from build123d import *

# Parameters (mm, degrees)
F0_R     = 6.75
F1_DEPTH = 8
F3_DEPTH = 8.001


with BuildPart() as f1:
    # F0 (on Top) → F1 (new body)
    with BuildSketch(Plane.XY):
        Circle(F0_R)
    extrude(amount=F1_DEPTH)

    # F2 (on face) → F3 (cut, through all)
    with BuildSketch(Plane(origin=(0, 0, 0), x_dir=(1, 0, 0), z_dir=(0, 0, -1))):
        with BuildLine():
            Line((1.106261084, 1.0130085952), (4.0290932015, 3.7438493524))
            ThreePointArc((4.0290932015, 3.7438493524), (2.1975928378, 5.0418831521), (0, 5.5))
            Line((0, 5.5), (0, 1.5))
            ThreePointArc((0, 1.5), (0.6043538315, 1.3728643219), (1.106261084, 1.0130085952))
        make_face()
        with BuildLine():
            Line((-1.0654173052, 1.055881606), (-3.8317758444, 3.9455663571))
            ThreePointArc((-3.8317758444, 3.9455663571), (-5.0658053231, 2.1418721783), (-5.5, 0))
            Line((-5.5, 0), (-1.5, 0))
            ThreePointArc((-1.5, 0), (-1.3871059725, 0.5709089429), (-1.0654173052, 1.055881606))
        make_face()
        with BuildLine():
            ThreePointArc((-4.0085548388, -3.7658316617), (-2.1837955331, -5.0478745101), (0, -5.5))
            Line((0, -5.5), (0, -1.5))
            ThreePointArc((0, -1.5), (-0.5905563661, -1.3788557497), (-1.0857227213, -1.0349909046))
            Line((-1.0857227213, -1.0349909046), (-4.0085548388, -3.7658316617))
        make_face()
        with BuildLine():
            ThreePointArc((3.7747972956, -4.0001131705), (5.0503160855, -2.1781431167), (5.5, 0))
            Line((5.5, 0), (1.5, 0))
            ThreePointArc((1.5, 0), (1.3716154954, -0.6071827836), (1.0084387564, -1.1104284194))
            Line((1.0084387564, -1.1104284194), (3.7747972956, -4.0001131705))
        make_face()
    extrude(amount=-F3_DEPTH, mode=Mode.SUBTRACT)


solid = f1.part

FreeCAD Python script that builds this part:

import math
import FreeCAD as App
import Part
import Sketcher
from FreeCAD import Vector

doc = App.newDocument("Part")
body = doc.addObject("PartDesign::Body", "Body")

sketch1 = body.newObject("Sketcher::SketchObject", "Sketch")
sketch1.AttachmentSupport = (doc.getObject("XY_Plane"), [""])
sketch1.MapMode = "FlatFace"
sketch1.addGeometry(Part.Circle(Vector(0, 0, 0), Vector(0, 0, 1), 7), False)
sketch1.addConstraint([
    Sketcher.Constraint("Coincident", 0, 3, -1, 1),
    Sketcher.Constraint("Diameter", 0, 13.5),
])
pad1 = body.newObject("PartDesign::Pad", "Pad")
pad1.Profile = sketch1
pad1.Length = 8

sketch2 = body.newObject("Sketcher::SketchObject", "Sketch001")
sketch2.AttachmentSupport = (doc.getObject("XY_Plane"), [""])
sketch2.MapMode = "FlatFace"
sketch2.addGeometry([
    Part.LineSegment(Vector(1.1, -1, 0), Vector(4, -3.7, 0)),
    Part.ArcOfCircle(Part.Circle(Vector(0, 0, 0), Vector(0, 0, 1), 5.5), math.radians(-90), math.radians(-43)),
    Part.LineSegment(Vector(0, -5.5, 0), Vector(0, -1.5, 0)),
    Part.ArcOfCircle(Part.Circle(Vector(0, 0, 0), Vector(0, 0, 1), 1.5), math.radians(-90), math.radians(-42)),
    Part.LineSegment(Vector(-1.1, -1.1, 0), Vector(-3.8, -3.9, 0)),
    Part.ArcOfCircle(Part.Circle(Vector(0, 0, 0), Vector(0, 0, 1), 5.5), math.radians(180), math.radians(226)),
    Part.LineSegment(Vector(-5.5, 0, 0), Vector(-1.5, 0, 0)),
    Part.ArcOfCircle(Part.Circle(Vector(0, 0, 0), Vector(0, 0, 1), 1.5), math.radians(180), math.radians(225)),
    Part.ArcOfCircle(Part.Circle(Vector(0, 0, 0), Vector(0, 0, 1), 5.5), math.radians(90), math.radians(137)),
    Part.LineSegment(Vector(0, 5.5, 0), Vector(0, 1.5, 0)),
    Part.ArcOfCircle(Part.Circle(Vector(0, 0, 0), Vector(0, 0, 1), 1.5), math.radians(90), math.radians(136)),
    Part.LineSegment(Vector(-1.1, 1, 0), Vector(-4, 3.8, 0)),
    Part.ArcOfCircle(Part.Circle(Vector(0, 0, 0), Vector(0, 0, 1), 5.5), math.radians(0), math.radians(47)),
    Part.LineSegment(Vector(5.5, 0, 0), Vector(1.5, 0, 0)),
    Part.ArcOfCircle(Part.Circle(Vector(0, 0, 0), Vector(0, 0, 1), 1.5), math.radians(0), math.radians(48)),
    Part.LineSegment(Vector(1, 1.1, 0), Vector(3.8, 4, 0)),
], False)
sketch2.addConstraint([
    Sketcher.Constraint("Coincident", 0, 2, 1, 2),
    Sketcher.Constraint("Coincident", 1, 1, 2, 1),
    Sketcher.Constraint("Coincident", 2, 2, 3, 1),
    Sketcher.Constraint("Coincident", 3, 2, 0, 1),
    Sketcher.Constraint("Coincident", 4, 2, 5, 2),
    Sketcher.Constraint("Coincident", 5, 1, 6, 1),
    Sketcher.Constraint("Coincident", 6, 2, 7, 1),
    Sketcher.Constraint("Coincident", 7, 2, 4, 1),
    Sketcher.Constraint("Coincident", 8, 1, 9, 1),
    Sketcher.Constraint("Coincident", 9, 2, 10, 1),
    Sketcher.Constraint("Coincident", 10, 2, 11, 1),
    Sketcher.Constraint("Coincident", 11, 2, 8, 2),
    Sketcher.Constraint("Coincident", 12, 1, 13, 1),
    Sketcher.Constraint("Coincident", 13, 2, 14, 1),
    Sketcher.Constraint("Coincident", 14, 2, 15, 1),
    Sketcher.Constraint("Coincident", 15, 2, 12, 2),
    Sketcher.Constraint("Vertical", 2),
    Sketcher.Constraint("Horizontal", 6),
    Sketcher.Constraint("Vertical", 9),
    Sketcher.Constraint("Horizontal", 13),
    Sketcher.Constraint("Coincident", 1, 3, -1, 1),
    Sketcher.Constraint("Coincident", 3, 3, -1, 1),
    Sketcher.Constraint("Coincident", 5, 3, -1, 1),
    Sketcher.Constraint("Coincident", 7, 3, -1, 1),
    Sketcher.Constraint("Coincident", 8, 3, -1, 1),
    Sketcher.Constraint("Coincident", 10, 3, -1, 1),
    Sketcher.Constraint("Coincident", 12, 3, -1, 1),
    Sketcher.Constraint("Coincident", 14, 3, -1, 1),
    Sketcher.Constraint("Equal", 1, 5),
    Sketcher.Constraint("Equal", 3, 7),
    Sketcher.Constraint("Equal", 5, 8),
    Sketcher.Constraint("Equal", 7, 10),
    Sketcher.Constraint("Equal", 8, 12),
    Sketcher.Constraint("Equal", 10, 14),
    Sketcher.Constraint("PointOnObject", 1, 1, -2),
    Sketcher.Constraint("PointOnObject", 5, 1, -1),
    Sketcher.Constraint("PointOnObject", 8, 1, -2),
    Sketcher.Constraint("PointOnObject", 12, 1, -1),
    Sketcher.Constraint("Parallel", 0, 11),
    Sketcher.Constraint("Parallel", 4, 15),
    Sketcher.Constraint("Equal", 0, 11),
    Sketcher.Constraint("Equal", 4, 15),
    Sketcher.Constraint("Radius", 1, 5.5),
    Sketcher.Constraint("Radius", 3, 1.5),
    Sketcher.Constraint("DistanceY", 0, 2, -1, 1, 3.743849),
    Sketcher.Constraint("DistanceX", -1, 1, 3, 2, 1.106261),
    Sketcher.Constraint("DistanceY", 7, 2, -1, 1, 1.055882),
    Sketcher.Constraint("DistanceX", -1, 1, 14, 2, 1.008439),
])
pocket1 = body.newObject("PartDesign::Pocket", "Pocket")
pocket1.Profile = sketch2
pocket1.Type = "ThroughAll"
pocket1.Reversed = True

doc.recompute()
